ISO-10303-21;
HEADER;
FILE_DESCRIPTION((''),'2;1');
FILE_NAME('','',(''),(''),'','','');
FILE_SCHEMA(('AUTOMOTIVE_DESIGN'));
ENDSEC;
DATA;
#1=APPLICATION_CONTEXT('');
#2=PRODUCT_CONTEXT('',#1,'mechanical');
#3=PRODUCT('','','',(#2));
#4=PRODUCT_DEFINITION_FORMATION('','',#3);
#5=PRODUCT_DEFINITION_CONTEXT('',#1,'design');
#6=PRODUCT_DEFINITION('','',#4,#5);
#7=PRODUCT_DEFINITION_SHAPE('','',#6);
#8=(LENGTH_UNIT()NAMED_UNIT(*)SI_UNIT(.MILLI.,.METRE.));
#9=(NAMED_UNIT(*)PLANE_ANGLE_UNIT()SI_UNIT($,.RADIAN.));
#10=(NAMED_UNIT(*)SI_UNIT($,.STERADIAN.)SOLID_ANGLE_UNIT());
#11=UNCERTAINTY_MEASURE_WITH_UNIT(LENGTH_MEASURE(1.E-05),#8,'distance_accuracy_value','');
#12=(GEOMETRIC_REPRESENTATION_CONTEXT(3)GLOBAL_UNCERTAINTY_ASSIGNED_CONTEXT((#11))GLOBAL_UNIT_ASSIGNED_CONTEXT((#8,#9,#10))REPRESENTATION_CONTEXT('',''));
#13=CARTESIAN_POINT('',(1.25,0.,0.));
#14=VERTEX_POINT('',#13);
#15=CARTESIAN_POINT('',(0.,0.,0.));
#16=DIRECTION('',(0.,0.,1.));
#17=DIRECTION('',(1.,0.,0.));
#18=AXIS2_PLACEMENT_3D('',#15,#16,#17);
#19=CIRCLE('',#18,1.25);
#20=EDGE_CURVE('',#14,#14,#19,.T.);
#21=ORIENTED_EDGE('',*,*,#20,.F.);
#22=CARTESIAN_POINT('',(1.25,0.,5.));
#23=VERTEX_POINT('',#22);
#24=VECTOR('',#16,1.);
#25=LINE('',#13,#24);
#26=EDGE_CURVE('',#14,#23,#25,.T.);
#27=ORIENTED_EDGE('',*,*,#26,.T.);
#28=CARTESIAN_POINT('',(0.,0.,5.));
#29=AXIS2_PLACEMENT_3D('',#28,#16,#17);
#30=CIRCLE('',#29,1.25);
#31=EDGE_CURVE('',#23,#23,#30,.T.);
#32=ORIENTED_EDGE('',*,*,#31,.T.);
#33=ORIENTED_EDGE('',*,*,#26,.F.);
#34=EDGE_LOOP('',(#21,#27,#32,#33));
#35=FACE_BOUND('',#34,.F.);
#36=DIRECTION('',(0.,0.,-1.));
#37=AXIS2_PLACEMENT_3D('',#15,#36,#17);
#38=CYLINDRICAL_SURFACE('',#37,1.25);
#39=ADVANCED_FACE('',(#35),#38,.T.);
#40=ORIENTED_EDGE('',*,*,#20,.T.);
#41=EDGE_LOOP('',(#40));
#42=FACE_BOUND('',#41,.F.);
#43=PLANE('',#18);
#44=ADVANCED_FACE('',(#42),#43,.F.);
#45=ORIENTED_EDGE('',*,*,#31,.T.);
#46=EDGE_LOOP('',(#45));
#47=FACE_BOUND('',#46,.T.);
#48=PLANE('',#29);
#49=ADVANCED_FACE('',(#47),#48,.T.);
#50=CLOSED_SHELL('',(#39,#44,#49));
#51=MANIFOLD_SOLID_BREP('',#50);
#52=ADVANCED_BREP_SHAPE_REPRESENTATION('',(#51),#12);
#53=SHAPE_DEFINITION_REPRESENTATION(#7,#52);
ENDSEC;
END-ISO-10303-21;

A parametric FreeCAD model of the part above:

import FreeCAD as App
import Part
import Sketcher

doc = App.newDocument("Part")
body = doc.addObject("PartDesign::Body", "Body")

# Sketch on XY plane
sketch1 = doc.addObject("Sketcher::SketchObject", "Sketch")
body.addObject(sketch1)
sketch1.AttachmentSupport = (doc.XY_Plane, [""])
sketch1.MapMode = "FlatFace"
sketch1.addGeometry(Part.Circle(App.Vector(0, 0, 0), App.Vector(0, 0, 1), 1.25), False)
sketch1.addConstraint(Sketcher.Constraint("Coincident", 0, 3, -1, 1))
sketch1.addConstraint(Sketcher.Constraint("Diameter", 0, 2.5))
pad1 = doc.addObject("PartDesign::Pad", "Pad")
body.addObject(pad1)
pad1.Profile = sketch1
pad1.Length = 5

doc.recompute()
